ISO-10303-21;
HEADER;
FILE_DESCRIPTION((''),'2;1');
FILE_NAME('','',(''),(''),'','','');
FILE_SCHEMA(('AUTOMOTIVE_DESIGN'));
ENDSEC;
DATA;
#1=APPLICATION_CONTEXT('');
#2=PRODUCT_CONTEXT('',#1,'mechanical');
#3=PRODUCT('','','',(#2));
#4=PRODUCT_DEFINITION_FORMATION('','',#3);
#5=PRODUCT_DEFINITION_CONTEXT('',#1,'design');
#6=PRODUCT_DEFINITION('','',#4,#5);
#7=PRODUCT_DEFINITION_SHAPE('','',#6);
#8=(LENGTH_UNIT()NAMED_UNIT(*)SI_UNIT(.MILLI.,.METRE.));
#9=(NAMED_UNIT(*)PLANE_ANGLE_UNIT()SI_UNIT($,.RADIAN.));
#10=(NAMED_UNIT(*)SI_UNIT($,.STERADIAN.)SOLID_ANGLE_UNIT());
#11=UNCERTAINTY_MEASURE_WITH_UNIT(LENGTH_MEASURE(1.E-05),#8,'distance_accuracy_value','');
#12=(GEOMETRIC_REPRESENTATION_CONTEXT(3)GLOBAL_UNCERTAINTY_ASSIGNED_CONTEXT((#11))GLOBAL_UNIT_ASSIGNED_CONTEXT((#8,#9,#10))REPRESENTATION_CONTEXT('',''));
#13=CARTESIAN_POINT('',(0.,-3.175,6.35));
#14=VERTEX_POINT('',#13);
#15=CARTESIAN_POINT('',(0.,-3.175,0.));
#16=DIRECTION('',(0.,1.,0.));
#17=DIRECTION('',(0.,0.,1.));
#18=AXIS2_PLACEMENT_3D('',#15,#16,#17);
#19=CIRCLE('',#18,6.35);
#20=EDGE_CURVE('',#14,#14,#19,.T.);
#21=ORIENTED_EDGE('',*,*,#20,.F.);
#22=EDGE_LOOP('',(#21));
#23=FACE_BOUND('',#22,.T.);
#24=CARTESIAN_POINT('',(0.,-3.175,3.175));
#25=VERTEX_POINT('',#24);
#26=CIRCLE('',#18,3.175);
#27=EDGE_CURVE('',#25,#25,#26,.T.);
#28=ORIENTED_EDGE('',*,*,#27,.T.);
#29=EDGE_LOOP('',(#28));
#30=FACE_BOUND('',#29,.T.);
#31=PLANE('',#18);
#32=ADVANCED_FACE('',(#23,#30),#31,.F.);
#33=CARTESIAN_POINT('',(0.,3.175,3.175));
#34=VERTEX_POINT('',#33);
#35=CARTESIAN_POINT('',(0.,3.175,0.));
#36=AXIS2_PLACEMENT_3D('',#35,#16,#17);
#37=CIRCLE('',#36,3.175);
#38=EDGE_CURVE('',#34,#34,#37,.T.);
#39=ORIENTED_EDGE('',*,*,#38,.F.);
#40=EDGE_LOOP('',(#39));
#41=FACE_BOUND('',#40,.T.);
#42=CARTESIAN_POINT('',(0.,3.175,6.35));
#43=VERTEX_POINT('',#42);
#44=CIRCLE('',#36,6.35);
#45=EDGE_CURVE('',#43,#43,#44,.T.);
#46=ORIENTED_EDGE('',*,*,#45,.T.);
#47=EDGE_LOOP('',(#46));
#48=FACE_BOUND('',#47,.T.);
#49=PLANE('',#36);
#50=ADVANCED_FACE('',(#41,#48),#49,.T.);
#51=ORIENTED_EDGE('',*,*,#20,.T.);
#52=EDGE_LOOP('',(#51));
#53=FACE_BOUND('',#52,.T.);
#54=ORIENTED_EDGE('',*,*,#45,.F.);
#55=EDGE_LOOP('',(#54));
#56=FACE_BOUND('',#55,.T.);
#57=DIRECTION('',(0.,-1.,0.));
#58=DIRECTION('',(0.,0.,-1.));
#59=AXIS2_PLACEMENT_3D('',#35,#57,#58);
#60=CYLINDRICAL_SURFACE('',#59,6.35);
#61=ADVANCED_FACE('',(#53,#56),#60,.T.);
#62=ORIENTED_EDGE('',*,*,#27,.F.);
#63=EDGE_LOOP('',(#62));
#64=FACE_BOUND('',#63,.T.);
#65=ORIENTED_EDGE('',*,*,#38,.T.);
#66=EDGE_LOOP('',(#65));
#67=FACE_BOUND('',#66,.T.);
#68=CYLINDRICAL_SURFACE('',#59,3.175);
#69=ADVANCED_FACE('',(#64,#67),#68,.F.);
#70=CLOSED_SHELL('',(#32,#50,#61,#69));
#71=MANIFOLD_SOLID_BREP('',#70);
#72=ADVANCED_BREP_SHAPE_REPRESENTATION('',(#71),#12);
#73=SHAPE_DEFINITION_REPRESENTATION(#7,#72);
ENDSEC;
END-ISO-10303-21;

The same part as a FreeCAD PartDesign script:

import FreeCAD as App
import Part
import Sketcher

V = App.Vector
Q = App.Units.Quantity

doc = App.newDocument("Part")
body = doc.addObject("PartDesign::Body", "Body")

# Sketch on XZ plane
sketch1 = body.newObject("Sketcher::SketchObject", "Sketch")
sketch1.AttachmentSupport = (doc.getObject("XZ_Plane"), [""])
sketch1.MapMode = "FlatFace"
sketch1.addGeometry([
    Part.Circle(V(0, 0, 0), V(0, 0, 1), 6.35),
    Part.Circle(V(0, 0, 0), V(0, 0, 1), 3.175),
], False)
sketch1.addConstraint([
    Sketcher.Constraint("Coincident", 0, 3, -1, 1),
    Sketcher.Constraint("Coincident", 1, 3, -1, 1),
    Sketcher.Constraint("Diameter", 0, Q("0.5 in")),
    Sketcher.Constraint("Diameter", 1, Q("0.25 in")),
])
pad1 = body.newObject("PartDesign::Pad", "Pad")
pad1.Profile = sketch1
pad1.Length = Q("0.25 in")
pad1.Midplane = True

doc.recompute()
